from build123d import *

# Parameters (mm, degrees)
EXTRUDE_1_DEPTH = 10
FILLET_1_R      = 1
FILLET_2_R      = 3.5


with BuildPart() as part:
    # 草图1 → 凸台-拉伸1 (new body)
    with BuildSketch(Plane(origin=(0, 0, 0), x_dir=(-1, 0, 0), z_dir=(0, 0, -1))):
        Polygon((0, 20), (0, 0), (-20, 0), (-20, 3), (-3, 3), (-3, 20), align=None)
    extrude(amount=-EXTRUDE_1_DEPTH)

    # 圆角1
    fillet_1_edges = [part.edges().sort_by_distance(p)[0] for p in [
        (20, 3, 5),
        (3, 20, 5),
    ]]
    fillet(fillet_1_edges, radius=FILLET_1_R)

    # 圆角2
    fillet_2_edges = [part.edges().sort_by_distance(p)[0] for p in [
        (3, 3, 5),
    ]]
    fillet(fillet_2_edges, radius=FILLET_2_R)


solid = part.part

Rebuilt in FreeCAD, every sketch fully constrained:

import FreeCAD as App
import Part
import Sketcher

V = App.Vector


def edges_at(feature, points):
    """Names of the edges that pass closest to the given points."""
    edges = feature.Shape.Edges
    near = lambda p: min(range(len(edges)), key=lambda i: edges[i].distToShape(Part.Vertex(*p))[0])
    return sorted({f"Edge{near(p) + 1}" for p in points})

doc = App.newDocument("Part")
body = doc.addObject("PartDesign::Body", "Body")

sketch1 = doc.addObject("Sketcher::SketchObject", "Sketch")
body.addObject(sketch1)
sketch1.AttachmentSupport = (doc.XY_Plane, [""])
sketch1.MapMode = "FlatFace"
sketch1.addGeometry(Part.LineSegment(V(0, 0, 0), V(0, 20, 0)), False)
sketch1.addGeometry(Part.LineSegment(V(0, 20, 0), V(3, 20, 0)), False)
sketch1.addGeometry(Part.LineSegment(V(3, 20, 0), V(3, 3, 0)), False)
sketch1.addGeometry(Part.LineSegment(V(3, 3, 0), V(20, 3, 0)), False)
sketch1.addGeometry(Part.LineSegment(V(20, 3, 0), V(20, 0, 0)), False)
sketch1.addGeometry(Part.LineSegment(V(20, 0, 0), V(0, 0, 0)), False)
sketch1.addConstraint(Sketcher.Constraint("Coincident", 0, 2, 1, 1))
sketch1.addConstraint(Sketcher.Constraint("Coincident", 1, 2, 2, 1))
sketch1.addConstraint(Sketcher.Constraint("Coincident", 2, 2, 3, 1))
sketch1.addConstraint(Sketcher.Constraint("Coincident", 3, 2, 4, 1))
sketch1.addConstraint(Sketcher.Constraint("Coincident", 4, 2, 5, 1))
sketch1.addConstraint(Sketcher.Constraint("Coincident", 5, 2, 0, 1))
sketch1.addConstraint(Sketcher.Constraint("Vertical", 0))
sketch1.addConstraint(Sketcher.Constraint("Horizontal", 1))
sketch1.addConstraint(Sketcher.Constraint("Vertical", 2))
sketch1.addConstraint(Sketcher.Constraint("Horizontal", 3))
sketch1.addConstraint(Sketcher.Constraint("Vertical", 4))
sketch1.addConstraint(Sketcher.Constraint("Horizontal", 5))
sketch1.addConstraint(Sketcher.Constraint("Coincident", 5, 2, -1, 1))
sketch1.addConstraint(Sketcher.Constraint("Equal", 5, 0))
sketch1.addConstraint(Sketcher.Constraint("Equal", 3, 2))
sketch1.addConstraint(Sketcher.Constraint("DistanceX", 1, 1, 1, 2, 3.0))
sketch1.addConstraint(Sketcher.Constraint("DistanceX", 3, 1, 3, 2, 17.0))
pad1 = doc.addObject("PartDesign::Pad", "Pad")
body.addObject(pad1)
pad1.Profile = sketch1
pad1.Length = 10
doc.recompute()

fillet = doc.addObject("PartDesign::Fillet", "Fillet")
body.addObject(fillet)
fillet.Base = (pad1, edges_at(pad1, [(20, 3, 5), (3, 20, 5)]))
fillet.Radius = 1
doc.recompute()

fillet2 = doc.addObject("PartDesign::Fillet", "Fillet001")
body.addObject(fillet2)
fillet2.Base = (fillet, edges_at(fillet, [(3, 3, 5)]))
fillet2.Radius = 3.5

doc.recompute()
